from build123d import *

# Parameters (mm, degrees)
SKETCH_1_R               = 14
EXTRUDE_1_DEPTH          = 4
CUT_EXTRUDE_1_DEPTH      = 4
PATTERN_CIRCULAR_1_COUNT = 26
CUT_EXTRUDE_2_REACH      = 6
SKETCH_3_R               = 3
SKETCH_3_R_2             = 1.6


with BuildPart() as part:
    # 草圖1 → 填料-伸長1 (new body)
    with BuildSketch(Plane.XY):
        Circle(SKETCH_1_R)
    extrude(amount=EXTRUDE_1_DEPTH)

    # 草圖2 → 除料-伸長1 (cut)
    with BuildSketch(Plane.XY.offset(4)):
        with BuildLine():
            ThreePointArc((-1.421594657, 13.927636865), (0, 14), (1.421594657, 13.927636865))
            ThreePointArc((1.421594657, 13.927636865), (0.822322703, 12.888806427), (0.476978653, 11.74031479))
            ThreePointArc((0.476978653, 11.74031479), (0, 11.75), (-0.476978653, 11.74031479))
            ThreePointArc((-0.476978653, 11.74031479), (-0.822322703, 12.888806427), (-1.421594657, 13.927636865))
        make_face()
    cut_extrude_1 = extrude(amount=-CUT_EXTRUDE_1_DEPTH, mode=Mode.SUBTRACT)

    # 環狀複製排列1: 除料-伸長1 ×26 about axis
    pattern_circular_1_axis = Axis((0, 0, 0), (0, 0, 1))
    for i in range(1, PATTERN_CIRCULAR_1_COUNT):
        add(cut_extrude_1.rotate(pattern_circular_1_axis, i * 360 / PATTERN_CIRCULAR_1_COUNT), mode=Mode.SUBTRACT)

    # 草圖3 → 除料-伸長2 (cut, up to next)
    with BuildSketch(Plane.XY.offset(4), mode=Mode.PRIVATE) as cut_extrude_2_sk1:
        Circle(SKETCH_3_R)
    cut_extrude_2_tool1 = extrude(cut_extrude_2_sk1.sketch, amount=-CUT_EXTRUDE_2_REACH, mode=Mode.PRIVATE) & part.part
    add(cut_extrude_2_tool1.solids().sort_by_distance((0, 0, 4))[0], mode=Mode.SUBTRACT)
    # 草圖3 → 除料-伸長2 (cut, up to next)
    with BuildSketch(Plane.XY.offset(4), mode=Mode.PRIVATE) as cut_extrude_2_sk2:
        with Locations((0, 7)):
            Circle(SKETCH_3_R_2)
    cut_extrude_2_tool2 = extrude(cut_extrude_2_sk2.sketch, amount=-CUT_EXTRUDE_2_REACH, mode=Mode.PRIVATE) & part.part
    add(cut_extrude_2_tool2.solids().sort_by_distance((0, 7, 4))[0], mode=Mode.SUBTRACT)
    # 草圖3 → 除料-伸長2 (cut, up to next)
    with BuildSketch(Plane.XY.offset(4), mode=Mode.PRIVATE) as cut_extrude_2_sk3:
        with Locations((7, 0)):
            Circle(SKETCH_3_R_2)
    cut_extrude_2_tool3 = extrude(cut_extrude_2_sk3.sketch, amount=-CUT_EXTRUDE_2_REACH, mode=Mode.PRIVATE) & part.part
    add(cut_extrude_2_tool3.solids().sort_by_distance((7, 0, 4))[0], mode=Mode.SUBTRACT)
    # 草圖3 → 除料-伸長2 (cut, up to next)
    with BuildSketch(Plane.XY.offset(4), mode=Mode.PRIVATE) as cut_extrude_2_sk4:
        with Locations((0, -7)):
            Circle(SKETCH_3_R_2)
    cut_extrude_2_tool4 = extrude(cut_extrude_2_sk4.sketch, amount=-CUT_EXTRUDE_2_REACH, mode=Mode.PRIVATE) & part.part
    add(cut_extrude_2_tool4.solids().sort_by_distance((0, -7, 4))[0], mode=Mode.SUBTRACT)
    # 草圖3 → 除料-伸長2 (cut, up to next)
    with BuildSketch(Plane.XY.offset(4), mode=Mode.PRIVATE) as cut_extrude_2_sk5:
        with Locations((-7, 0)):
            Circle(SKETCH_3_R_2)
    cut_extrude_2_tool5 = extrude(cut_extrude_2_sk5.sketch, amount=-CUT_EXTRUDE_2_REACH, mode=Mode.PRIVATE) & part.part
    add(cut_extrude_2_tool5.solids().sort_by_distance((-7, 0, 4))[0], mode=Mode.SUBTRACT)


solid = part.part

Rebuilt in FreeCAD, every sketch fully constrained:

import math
import FreeCAD as App
import Part
import Sketcher

V = App.Vector
Q = App.Units.Quantity

doc = App.newDocument("Part")
params = doc.addObject("Spreadsheet::Sheet", "Params")
for row, (alias, value) in enumerate([
    ("sketch1_diameter", "28 mm"),
    ("pad1_length", "4 mm"),
    ("sketch2_radius", "14 mm"),
    ("sketch2_radius2", "5.2 mm"),
    ("sketch2_radius3", "11.75 mm"),
    ("pocket1_length", "4 mm"),
    ("sketch3_diameter", "6 mm"),
    ("sketch4_diameter", "3.2 mm"),
    ("sketch5_diameter", "3.2 mm"),
    ("sketch6_diameter", "3.2 mm"),
    ("sketch7_diameter", "3.2 mm"),
], start=1):
    params.set(f"A{row}", alias)
    params.set(f"B{row}", "=" + value)
    params.setAlias(f"B{row}", alias)

body = doc.addObject("PartDesign::Body", "Body")

sketch1 = body.newObject("Sketcher::SketchObject", "Sketch")
sketch1.AttachmentSupport = (doc.getObject("XY_Plane"), [""])
sketch1.MapMode = "FlatFace"
sketch1.addGeometry(Part.Circle(V(0, 0, 0), V(0, 0, 1), 14), False)
sketch1.addConstraint([
    Sketcher.Constraint("Coincident", 0, 3, -1, 1),
    Sketcher.Constraint("Diameter", 0, Q("28 mm")),
])
sketch1.setExpression("Constraints[1]", "Params.sketch1_diameter")
pad1 = body.newObject("PartDesign::Pad", "Pad")
pad1.Profile = sketch1
pad1.setExpression("Length", "Params.pad1_length")

sketch2 = body.newObject("Sketcher::SketchObject", "Sketch001")
sketch2.AttachmentSupport = (doc.getObject("XY_Plane"), [""])
sketch2.MapMode = "FlatFace"
sketch2.AttachmentOffset = App.Placement(V(0, 0, 4), App.Rotation())
sketch2.addGeometry([
    Part.ArcOfCircle(Part.Circle(V(0, 0, 0), V(0, 0, 1), 14), math.radians(84.172), math.radians(95.828)),
    Part.ArcOfCircle(Part.Circle(V(-5.596175, 10.827173, 0), V(0, 0, 1), 5.2), math.radians(10.113825), math.radians(36.601303)),
    Part.ArcOfCircle(Part.Circle(V(0, 0, 0), V(0, 0, 1), 11.75), math.radians(87.6735), math.radians(92.3265)),
    Part.ArcOfCircle(Part.Circle(V(5.596175, 10.827173, 0), V(0, 0, 1), 5.2), math.radians(143.398697), math.radians(169.886175)),
], False)
sketch2.addConstraint([
    Sketcher.Constraint("Coincident", 0, 2, 1, 2),
    Sketcher.Constraint("Coincident", 1, 1, 2, 2),
    Sketcher.Constraint("Coincident", 2, 1, 3, 2),
    Sketcher.Constraint("Coincident", 3, 1, 0, 1),
    Sketcher.Constraint("Coincident", 0, 3, -1, 1),
    Sketcher.Constraint("Coincident", 2, 3, -1, 1),
    Sketcher.Constraint("Equal", 1, 3),
    Sketcher.Constraint("Symmetric", 1, 3, 3, 3, -2),
    Sketcher.Constraint("Radius", 0, Q("14 mm")),
    Sketcher.Constraint("Radius", 1, Q("5.2 mm")),
    Sketcher.Constraint("Radius", 2, Q("11.75 mm")),
    Sketcher.Constraint("DistanceX", 1, 1, -1, 1, Q("0.476979 mm")),
    Sketcher.Constraint("DistanceX", 1, 3, 3, 3, Q("11.19235 mm")),
])
sketch2.setExpression("Constraints[8]", "Params.sketch2_radius")
sketch2.setExpression("Constraints[9]", "Params.sketch2_radius2")
sketch2.setExpression("Constraints[10]", "Params.sketch2_radius3")
pocket1 = body.newObject("PartDesign::Pocket", "Pocket")
pocket1.Profile = sketch2
pocket1.setExpression("Length", "Params.pocket1_length")
doc.recompute()

polarpattern = body.newObject("PartDesign::PolarPattern", "PolarPattern")
polarpattern.Originals = [pocket1]
polarpattern.Axis = (doc.getObject("Z_Axis"), [""])
polarpattern.Angle = 360
polarpattern.Occurrences = 26
body.Tip = polarpattern

sketch3 = body.newObject("Sketcher::SketchObject", "Sketch002")
sketch3.AttachmentSupport = (doc.getObject("XY_Plane"), [""])
sketch3.MapMode = "FlatFace"
sketch3.AttachmentOffset = App.Placement(V(0, 0, 4), App.Rotation())
sketch3.addGeometry(Part.Circle(V(0, 0, 0), V(0, 0, 1), 3), False)
sketch3.addConstraint([
    Sketcher.Constraint("Coincident", 0, 3, -1, 1),
    Sketcher.Constraint("Diameter", 0, Q("6 mm")),
])
sketch3.setExpression("Constraints[1]", "Params.sketch3_diameter")
pocket2 = body.newObject("PartDesign::Pocket", "Pocket001")
pocket2.Profile = sketch3
pocket2.Type = "UpToFirst"

sketch4 = body.newObject("Sketcher::SketchObject", "Sketch003")
sketch4.AttachmentSupport = (doc.getObject("XY_Plane"), [""])
sketch4.MapMode = "FlatFace"
sketch4.AttachmentOffset = App.Placement(V(0, 0, 4), App.Rotation())
sketch4.addGeometry(Part.Circle(V(0, 7, 0), V(0, 0, 1), 1.6), False)
sketch4.addConstraint([
    Sketcher.Constraint("PointOnObject", 0, 3, -2),
    Sketcher.Constraint("Diameter", 0, Q("3.2 mm")),
    Sketcher.Constraint("DistanceY", -1, 1, 0, 3, Q("7 mm")),
])
sketch4.setExpression("Constraints[1]", "Params.sketch4_diameter")
pocket3 = body.newObject("PartDesign::Pocket", "Pocket002")
pocket3.Profile = sketch4
pocket3.Type = "UpToFirst"

sketch5 = body.newObject("Sketcher::SketchObject", "Sketch004")
sketch5.AttachmentSupport = (doc.getObject("XY_Plane"), [""])
sketch5.MapMode = "FlatFace"
sketch5.AttachmentOffset = App.Placement(V(0, 0, 4), App.Rotation())
sketch5.addGeometry(Part.Circle(V(7, 0, 0), V(0, 0, 1), 1.6), False)
sketch5.addConstraint([
    Sketcher.Constraint("PointOnObject", 0, 3, -1),
    Sketcher.Constraint("Diameter", 0, Q("3.2 mm")),
    Sketcher.Constraint("DistanceX", -1, 1, 0, 3, Q("7 mm")),
])
sketch5.setExpression("Constraints[1]", "Params.sketch5_diameter")
pocket4 = body.newObject("PartDesign::Pocket", "Pocket003")
pocket4.Profile = sketch5
pocket4.Type = "UpToFirst"

sketch6 = body.newObject("Sketcher::SketchObject", "Sketch005")
sketch6.AttachmentSupport = (doc.getObject("XY_Plane"), [""])
sketch6.MapMode = "FlatFace"
sketch6.AttachmentOffset = App.Placement(V(0, 0, 4), App.Rotation())
sketch6.addGeometry(Part.Circle(V(0, -7, 0), V(0, 0, 1), 1.6), False)
sketch6.addConstraint([
    Sketcher.Constraint("PointOnObject", 0, 3, -2),
    Sketcher.Constraint("Diameter", 0, Q("3.2 mm")),
    Sketcher.Constraint("DistanceY", 0, 3, -1, 1, Q("7 mm")),
])
sketch6.setExpression("Constraints[1]", "Params.sketch6_diameter")
pocket5 = body.newObject("PartDesign::Pocket", "Pocket004")
pocket5.Profile = sketch6
pocket5.Type = "UpToFirst"

sketch7 = body.newObject("Sketcher::SketchObject", "Sketch006")
sketch7.AttachmentSupport = (doc.getObject("XY_Plane"), [""])
sketch7.MapMode = "FlatFace"
sketch7.AttachmentOffset = App.Placement(V(0, 0, 4), App.Rotation())
sketch7.addGeometry(Part.Circle(V(-7, 0, 0), V(0, 0, 1), 1.6), False)
sketch7.addConstraint([
    Sketcher.Constraint("PointOnObject", 0, 3, -1),
    Sketcher.Constraint("Diameter", 0, Q("3.2 mm")),
    Sketcher.Constraint("DistanceX", 0, 3, -1, 1, Q("7 mm")),
])
sketch7.setExpression("Constraints[1]", "Params.sketch7_diameter")
pocket6 = body.newObject("PartDesign::Pocket", "Pocket005")
pocket6.Profile = sketch7
pocket6.Type = "UpToFirst"

doc.recompute()
